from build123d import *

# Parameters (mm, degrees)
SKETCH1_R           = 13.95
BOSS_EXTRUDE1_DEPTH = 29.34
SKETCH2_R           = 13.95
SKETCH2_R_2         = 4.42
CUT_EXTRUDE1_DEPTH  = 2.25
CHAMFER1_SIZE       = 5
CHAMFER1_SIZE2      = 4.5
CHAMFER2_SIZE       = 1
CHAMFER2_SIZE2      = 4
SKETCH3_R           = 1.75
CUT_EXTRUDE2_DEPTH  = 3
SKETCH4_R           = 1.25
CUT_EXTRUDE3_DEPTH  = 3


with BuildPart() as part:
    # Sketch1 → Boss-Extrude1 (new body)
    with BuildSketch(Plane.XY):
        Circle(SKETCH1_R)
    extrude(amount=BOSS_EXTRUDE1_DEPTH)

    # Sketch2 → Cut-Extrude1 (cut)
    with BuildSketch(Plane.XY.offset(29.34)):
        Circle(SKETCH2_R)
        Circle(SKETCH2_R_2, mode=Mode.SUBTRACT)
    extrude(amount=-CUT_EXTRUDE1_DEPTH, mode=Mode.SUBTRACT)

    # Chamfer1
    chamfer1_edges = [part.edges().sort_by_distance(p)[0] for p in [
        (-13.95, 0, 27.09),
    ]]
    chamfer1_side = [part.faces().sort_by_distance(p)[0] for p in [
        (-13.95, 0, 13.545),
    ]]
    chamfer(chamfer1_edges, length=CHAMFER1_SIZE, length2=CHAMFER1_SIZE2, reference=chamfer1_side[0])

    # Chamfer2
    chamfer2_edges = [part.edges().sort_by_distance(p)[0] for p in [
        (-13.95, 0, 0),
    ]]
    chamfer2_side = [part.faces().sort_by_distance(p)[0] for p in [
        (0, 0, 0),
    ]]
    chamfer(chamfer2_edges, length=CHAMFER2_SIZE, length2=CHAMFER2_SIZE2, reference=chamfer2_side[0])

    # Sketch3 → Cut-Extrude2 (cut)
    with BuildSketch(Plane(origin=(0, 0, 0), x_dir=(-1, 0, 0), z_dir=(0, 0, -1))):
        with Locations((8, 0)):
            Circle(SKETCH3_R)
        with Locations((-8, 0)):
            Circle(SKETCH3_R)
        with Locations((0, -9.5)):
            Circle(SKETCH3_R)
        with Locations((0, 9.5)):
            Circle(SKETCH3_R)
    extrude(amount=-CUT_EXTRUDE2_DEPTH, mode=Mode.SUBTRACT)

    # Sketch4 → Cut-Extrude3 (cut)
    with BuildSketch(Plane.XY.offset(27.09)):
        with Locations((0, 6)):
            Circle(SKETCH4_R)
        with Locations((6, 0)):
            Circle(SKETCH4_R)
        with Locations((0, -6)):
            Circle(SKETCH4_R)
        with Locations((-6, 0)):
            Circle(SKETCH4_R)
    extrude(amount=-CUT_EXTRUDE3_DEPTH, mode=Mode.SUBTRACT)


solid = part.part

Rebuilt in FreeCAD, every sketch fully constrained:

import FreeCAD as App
import Part
import Sketcher
from FreeCAD import Vector


def edges_at(feature, points):
    """Names of the edges that pass closest to the given points."""
    edges = feature.Shape.Edges
    near = lambda p: min(range(len(edges)), key=lambda i: edges[i].distToShape(Part.Vertex(*p))[0])
    return sorted({f"Edge{near(p) + 1}" for p in points})

doc = App.newDocument("Part")
params = doc.addObject("Spreadsheet::Sheet", "Params")
for row, (alias, value) in enumerate([
    ("sketch1_diameter", "27.9 mm"),
    ("pad1_length", "29.34 mm"),
    ("sketch2_diameter", "27.9 mm"),
    ("sketch2_diameter2", "8.84 mm"),
    ("pocket1_length", "2.25 mm"),
    ("chamfer_size", "5 mm"),
    ("chamfer_size2", "4.5 mm"),
    ("chamfer2_size", "1 mm"),
    ("chamfer2_size2", "4 mm"),
    ("sketch3_diameter", "3.5 mm"),
    ("pocket2_length", "3 mm"),
    ("sketch4_diameter", "2.5 mm"),
    ("pocket3_length", "3 mm"),
], start=1):
    params.set(f"A{row}", alias)
    params.set(f"B{row}", "=" + value)
    params.setAlias(f"B{row}", alias)

body = doc.addObject("PartDesign::Body", "Body")

sketch1 = doc.addObject("Sketcher::SketchObject", "Sketch")
body.addObject(sketch1)
sketch1.AttachmentSupport = (doc.XY_Plane, [""])
sketch1.MapMode = "FlatFace"
sketch1.addGeometry(Part.Circle(Vector(0, 0, 0), Vector(0, 0, 1), 13.95), False)
sketch1.addConstraint([
    Sketcher.Constraint("Coincident", 0, 3, -1, 1),
    Sketcher.Constraint("Diameter", 0, 27.9),
])
sketch1.setExpression("Constraints[1]", "Params.sketch1_diameter")
pad1 = doc.addObject("PartDesign::Pad", "Pad")
body.addObject(pad1)
pad1.Profile = sketch1
pad1.setExpression("Length", "Params.pad1_length")

sketch2 = doc.addObject("Sketcher::SketchObject", "Sketch001")
body.addObject(sketch2)
sketch2.AttachmentSupport = (doc.XY_Plane, [""])
sketch2.MapMode = "FlatFace"
sketch2.AttachmentOffset = App.Placement(Vector(0, 0, 29.34), App.Rotation())
sketch2.addGeometry([
    Part.Circle(Vector(0, 0, 0), Vector(0, 0, 1), 13.95),
    Part.Circle(Vector(0, 0, 0), Vector(0, 0, 1), 4.42),
], False)
sketch2.addConstraint([
    Sketcher.Constraint("Coincident", 0, 3, -1, 1),
    Sketcher.Constraint("Coincident", 1, 3, -1, 1),
    Sketcher.Constraint("Diameter", 0, 27.9),
    Sketcher.Constraint("Diameter", 1, 8.84),
])
sketch2.setExpression("Constraints[2]", "Params.sketch2_diameter")
sketch2.setExpression("Constraints[3]", "Params.sketch2_diameter2")
pocket1 = doc.addObject("PartDesign::Pocket", "Pocket")
body.addObject(pocket1)
pocket1.Profile = sketch2
pocket1.setExpression("Length", "Params.pocket1_length")
doc.recompute()

chamfer = doc.addObject("PartDesign::Chamfer", "Chamfer")
body.addObject(chamfer)
chamfer.Base = (pocket1, edges_at(pocket1, [(-13.95, 0, 27.09)]))
chamfer.ChamferType = "Two distances"
chamfer.setExpression("Size", "Params.chamfer_size")
chamfer.setExpression("Size2", "Params.chamfer_size2")
doc.recompute()

chamfer2 = doc.addObject("PartDesign::Chamfer", "Chamfer001")
body.addObject(chamfer2)
chamfer2.Base = (chamfer, edges_at(chamfer, [(-13.95, 0, 0)]))
chamfer2.ChamferType = "Two distances"
chamfer2.setExpression("Size", "Params.chamfer2_size")
chamfer2.setExpression("Size2", "Params.chamfer2_size2")
chamfer2.FlipDirection = True

sketch3 = doc.addObject("Sketcher::SketchObject", "Sketch002")
body.addObject(sketch3)
sketch3.AttachmentSupport = (doc.XY_Plane, [""])
sketch3.MapMode = "FlatFace"
sketch3.addGeometry([
    Part.Circle(Vector(-8, 0, 0), Vector(0, 0, 1), 1.75),
    Part.Circle(Vector(8, 0, 0), Vector(0, 0, 1), 1.75),
    Part.Circle(Vector(0, -9.5, 0), Vector(0, 0, 1), 1.75),
    Part.Circle(Vector(0, 9.5, 0), Vector(0, 0, 1), 1.75),
], False)
sketch3.addConstraint([
    Sketcher.Constraint("Equal", 0, 1),
    Sketcher.Constraint("Equal", 1, 2),
    Sketcher.Constraint("Equal", 2, 3),
    Sketcher.Constraint("Symmetric", 0, 3, 1, 3, -1, 1),
    Sketcher.Constraint("Symmetric", 2, 3, 3, 3, -1, 1),
    Sketcher.Constraint("PointOnObject", 0, 3, -1),
    Sketcher.Constraint("PointOnObject", 2, 3, -2),
    Sketcher.Constraint("Diameter", 0, 3.5),
    Sketcher.Constraint("DistanceX", 0, 3, -1, 1, 8.0),
    Sketcher.Constraint("DistanceY", 2, 3, 3, 3, 19.0),
])
sketch3.setExpression("Constraints[7]", "Params.sketch3_diameter")
pocket2 = doc.addObject("PartDesign::Pocket", "Pocket001")
body.addObject(pocket2)
pocket2.Profile = sketch3
pocket2.setExpression("Length", "Params.pocket2_length")
pocket2.Reversed = True

sketch4 = doc.addObject("Sketcher::SketchObject", "Sketch003")
body.addObject(sketch4)
sketch4.AttachmentSupport = (doc.XY_Plane, [""])
sketch4.MapMode = "FlatFace"
sketch4.AttachmentOffset = App.Placement(Vector(0, 0, 27.09), App.Rotation())
sketch4.addGeometry([
    Part.Circle(Vector(0, 6, 0), Vector(0, 0, 1), 1.25),
    Part.Circle(Vector(6, 0, 0), Vector(0, 0, 1), 1.25),
    Part.Circle(Vector(0, -6, 0), Vector(0, 0, 1), 1.25),
    Part.Circle(Vector(-6, 0, 0), Vector(0, 0, 1), 1.25),
], False)
sketch4.addConstraint([
    Sketcher.Constraint("Equal", 0, 1),
    Sketcher.Constraint("Equal", 1, 2),
    Sketcher.Constraint("Equal", 2, 3),
    Sketcher.Constraint("Symmetric", 0, 3, 2, 3, -1, 1),
    Sketcher.Constraint("Symmetric", 1, 3, 3, 3, -1, 1),
    Sketcher.Constraint("PointOnObject", 0, 3, -2),
    Sketcher.Constraint("PointOnObject", 1, 3, -1),
    Sketcher.Constraint("Diameter", 0, 2.5),
    Sketcher.Constraint("DistanceY", -1, 1, 0, 3, 6.0),
    Sketcher.Constraint("DistanceX", -1, 1, 1, 3, 6.0),
])
sketch4.setExpression("Constraints[7]", "Params.sketch4_diameter")
pocket3 = doc.addObject("PartDesign::Pocket", "Pocket002")
body.addObject(pocket3)
pocket3.Profile = sketch4
pocket3.setExpression("Length", "Params.pocket3_length")

doc.recompute()
